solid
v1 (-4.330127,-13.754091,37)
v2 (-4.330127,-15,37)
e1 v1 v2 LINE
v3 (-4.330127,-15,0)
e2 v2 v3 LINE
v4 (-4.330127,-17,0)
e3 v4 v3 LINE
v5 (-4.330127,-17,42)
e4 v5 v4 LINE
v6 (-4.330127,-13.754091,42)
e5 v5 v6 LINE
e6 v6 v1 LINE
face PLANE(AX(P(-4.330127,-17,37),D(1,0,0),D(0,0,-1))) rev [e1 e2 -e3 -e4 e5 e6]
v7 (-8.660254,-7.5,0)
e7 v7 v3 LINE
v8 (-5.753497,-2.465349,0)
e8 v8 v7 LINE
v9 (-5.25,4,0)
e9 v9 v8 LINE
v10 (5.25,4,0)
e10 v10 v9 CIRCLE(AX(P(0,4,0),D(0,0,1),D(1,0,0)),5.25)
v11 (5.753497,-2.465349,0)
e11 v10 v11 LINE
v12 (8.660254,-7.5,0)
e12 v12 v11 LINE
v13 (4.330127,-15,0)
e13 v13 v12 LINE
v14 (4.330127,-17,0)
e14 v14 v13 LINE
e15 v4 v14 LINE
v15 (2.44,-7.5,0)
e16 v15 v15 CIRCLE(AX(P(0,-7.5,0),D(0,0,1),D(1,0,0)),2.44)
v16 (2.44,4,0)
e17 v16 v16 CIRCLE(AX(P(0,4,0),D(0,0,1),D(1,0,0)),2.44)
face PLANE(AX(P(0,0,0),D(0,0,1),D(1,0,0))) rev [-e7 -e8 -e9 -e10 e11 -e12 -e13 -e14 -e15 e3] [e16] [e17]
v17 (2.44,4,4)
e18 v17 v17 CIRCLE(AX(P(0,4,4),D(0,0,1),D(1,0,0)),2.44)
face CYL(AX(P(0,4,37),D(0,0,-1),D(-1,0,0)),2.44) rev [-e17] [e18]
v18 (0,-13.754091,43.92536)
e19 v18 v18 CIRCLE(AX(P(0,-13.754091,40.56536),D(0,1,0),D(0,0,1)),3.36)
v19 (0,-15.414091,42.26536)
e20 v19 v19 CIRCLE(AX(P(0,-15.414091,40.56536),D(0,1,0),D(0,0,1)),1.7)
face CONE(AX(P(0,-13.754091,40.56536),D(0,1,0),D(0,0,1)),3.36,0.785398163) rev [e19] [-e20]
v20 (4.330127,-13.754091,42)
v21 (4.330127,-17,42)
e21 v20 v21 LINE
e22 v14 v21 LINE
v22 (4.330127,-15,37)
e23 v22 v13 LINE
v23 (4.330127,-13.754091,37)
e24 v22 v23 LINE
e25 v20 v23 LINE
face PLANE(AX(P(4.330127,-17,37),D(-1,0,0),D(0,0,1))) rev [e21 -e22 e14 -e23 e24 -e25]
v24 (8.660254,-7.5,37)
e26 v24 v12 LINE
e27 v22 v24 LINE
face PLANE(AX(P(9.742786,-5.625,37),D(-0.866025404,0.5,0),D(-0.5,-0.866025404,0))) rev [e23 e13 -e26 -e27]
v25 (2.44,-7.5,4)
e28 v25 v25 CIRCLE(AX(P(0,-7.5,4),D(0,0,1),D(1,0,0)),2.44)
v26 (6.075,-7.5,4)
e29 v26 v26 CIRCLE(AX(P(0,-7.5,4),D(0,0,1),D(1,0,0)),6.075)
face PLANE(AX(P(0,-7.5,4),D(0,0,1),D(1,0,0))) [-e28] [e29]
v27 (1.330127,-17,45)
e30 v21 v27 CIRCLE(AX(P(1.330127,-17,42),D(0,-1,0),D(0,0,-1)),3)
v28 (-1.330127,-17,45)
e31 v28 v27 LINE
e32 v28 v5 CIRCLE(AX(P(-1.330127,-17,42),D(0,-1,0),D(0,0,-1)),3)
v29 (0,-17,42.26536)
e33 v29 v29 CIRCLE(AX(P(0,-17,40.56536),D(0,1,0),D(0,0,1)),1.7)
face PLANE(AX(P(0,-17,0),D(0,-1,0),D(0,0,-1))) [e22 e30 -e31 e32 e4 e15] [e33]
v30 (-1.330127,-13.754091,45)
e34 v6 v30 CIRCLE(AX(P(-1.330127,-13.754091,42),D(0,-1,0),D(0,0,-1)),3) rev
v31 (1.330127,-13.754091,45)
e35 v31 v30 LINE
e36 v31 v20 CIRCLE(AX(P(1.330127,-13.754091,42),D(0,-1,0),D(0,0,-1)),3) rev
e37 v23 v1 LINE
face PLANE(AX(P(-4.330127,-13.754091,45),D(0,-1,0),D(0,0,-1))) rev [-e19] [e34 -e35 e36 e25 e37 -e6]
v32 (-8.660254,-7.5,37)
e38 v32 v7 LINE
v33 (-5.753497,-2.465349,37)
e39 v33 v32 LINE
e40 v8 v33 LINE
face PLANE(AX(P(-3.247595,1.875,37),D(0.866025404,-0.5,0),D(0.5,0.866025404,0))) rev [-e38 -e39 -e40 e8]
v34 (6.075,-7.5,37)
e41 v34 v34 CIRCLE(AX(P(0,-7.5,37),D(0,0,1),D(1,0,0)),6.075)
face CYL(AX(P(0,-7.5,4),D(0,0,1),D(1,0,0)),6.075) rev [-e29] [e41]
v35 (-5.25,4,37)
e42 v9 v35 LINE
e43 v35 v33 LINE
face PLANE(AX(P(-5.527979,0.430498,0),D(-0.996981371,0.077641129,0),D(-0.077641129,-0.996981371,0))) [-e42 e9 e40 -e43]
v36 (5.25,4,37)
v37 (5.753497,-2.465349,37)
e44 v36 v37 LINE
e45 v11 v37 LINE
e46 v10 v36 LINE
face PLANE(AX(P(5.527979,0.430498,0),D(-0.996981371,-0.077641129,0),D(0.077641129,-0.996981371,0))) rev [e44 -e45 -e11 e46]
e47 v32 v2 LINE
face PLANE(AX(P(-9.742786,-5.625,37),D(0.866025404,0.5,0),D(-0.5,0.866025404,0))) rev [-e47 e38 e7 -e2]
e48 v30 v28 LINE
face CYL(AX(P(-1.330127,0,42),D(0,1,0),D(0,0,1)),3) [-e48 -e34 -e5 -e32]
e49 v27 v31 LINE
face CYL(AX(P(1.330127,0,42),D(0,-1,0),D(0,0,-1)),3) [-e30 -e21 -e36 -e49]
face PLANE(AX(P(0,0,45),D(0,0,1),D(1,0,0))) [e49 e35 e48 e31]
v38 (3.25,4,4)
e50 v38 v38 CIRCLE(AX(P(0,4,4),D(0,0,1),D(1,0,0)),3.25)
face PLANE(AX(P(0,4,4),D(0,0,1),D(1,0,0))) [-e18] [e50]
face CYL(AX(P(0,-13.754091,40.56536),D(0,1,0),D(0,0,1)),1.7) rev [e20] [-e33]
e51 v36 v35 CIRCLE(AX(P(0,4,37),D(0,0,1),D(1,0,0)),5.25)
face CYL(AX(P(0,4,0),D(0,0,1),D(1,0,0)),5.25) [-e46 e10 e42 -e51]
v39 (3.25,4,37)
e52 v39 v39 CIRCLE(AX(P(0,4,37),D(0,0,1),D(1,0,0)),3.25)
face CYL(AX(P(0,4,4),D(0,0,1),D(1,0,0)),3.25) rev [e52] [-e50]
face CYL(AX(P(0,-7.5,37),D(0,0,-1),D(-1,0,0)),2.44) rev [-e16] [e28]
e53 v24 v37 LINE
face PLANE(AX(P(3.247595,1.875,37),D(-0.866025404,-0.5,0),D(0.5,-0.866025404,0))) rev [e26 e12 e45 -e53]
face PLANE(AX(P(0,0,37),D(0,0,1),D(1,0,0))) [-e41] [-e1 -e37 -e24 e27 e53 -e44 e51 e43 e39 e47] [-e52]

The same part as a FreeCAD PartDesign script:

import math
import FreeCAD as App
import Part
import Sketcher
Q = App.Units.Quantity


def edges_at(feature, points):
    """Names of the edges that pass closest to the given points."""
    edges = feature.Shape.Edges
    near = lambda p: min(range(len(edges)), key=lambda i: edges[i].distToShape(Part.Vertex(*p))[0])
    return sorted({f"Edge{near(p) + 1}" for p in points})


def add_polygon(sketch, points):
    """Adds a closed chain of lines whose ends are joined by coincident constraints."""
    first, n = sketch.GeometryCount, len(points)
    for a, b in zip(points, points[1:] + points[:1]):
        sketch.addGeometry(Part.LineSegment(App.Vector(*a, 0), App.Vector(*b, 0)), False)
    for i in range(n):
        sketch.addConstraint(Sketcher.Constraint("Coincident", first + i, 2, first + (i + 1) % n, 1))

doc = App.newDocument("Part")
body = doc.addObject("PartDesign::Body", "Body")

sketch1 = doc.addObject("Sketcher::SketchObject", "Sketch")
body.addObject(sketch1)
sketch1.AttachmentSupport = (doc.XY_Plane, [""])
sketch1.MapMode = "FlatFace"
sketch1.addGeometry([
    Part.ArcOfCircle(Part.Circle(App.Vector(0, 4, 0), App.Vector(0, 0, 1), 4), math.radians(4.538944), math.radians(175.461056)),
    Part.LineSegment(App.Vector(-3.987455, 4.316547, 0), App.Vector(-4.330127, 0, 0)),
    Part.LineSegment(App.Vector(-4.330127, 0, 0), App.Vector(-8.660254, -7.5, 0)),
    Part.LineSegment(App.Vector(-8.660254, -7.5, 0), App.Vector(-4.330127, -15, 0)),
    Part.LineSegment(App.Vector(-4.330127, -15, 0), App.Vector(4.330127, -15, 0)),
    Part.LineSegment(App.Vector(4.330127, -15, 0), App.Vector(8.660254, -7.5, 0)),
    Part.LineSegment(App.Vector(8.660254, -7.5, 0), App.Vector(4.330127, 0, 0)),
    Part.LineSegment(App.Vector(4.330127, 0, 0), App.Vector(3.987455, 4.316547, 0)),
    Part.Circle(App.Vector(0, -7.5, 0), App.Vector(0, 0, 1), 2.44),
    Part.Circle(App.Vector(0, 4, 0), App.Vector(0, 0, 1), 2.44),
], False)
sketch1.addConstraint([
    Sketcher.Constraint("Tangent", 0, 2, 1, 1),
    Sketcher.Constraint("Coincident", 1, 2, 2, 1),
    Sketcher.Constraint("Coincident", 2, 2, 3, 1),
    Sketcher.Constraint("Coincident", 3, 2, 4, 1),
    Sketcher.Constraint("Coincident", 4, 2, 5, 1),
    Sketcher.Constraint("Coincident", 5, 2, 6, 1),
    Sketcher.Constraint("Coincident", 6, 2, 7, 1),
    Sketcher.Constraint("Tangent", 7, 2, 0, 1),
    Sketcher.Constraint("Horizontal", 4),
    Sketcher.Constraint("Coincident", 9, 3, 0, 3),
    Sketcher.Constraint("Equal", 8, 9),
    Sketcher.Constraint("Symmetric", 1, 2, 6, 2, -1, 1),
    Sketcher.Constraint("Symmetric", 2, 2, 5, 2, -2),
    Sketcher.Constraint("Symmetric", 0, 2, 7, 2, -2),
    Sketcher.Constraint("PointOnObject", 8, 3, -2),
    Sketcher.Constraint("Parallel", 2, 5),
    Sketcher.Constraint("Parallel", 3, 6),
    Sketcher.Constraint("Horizontal", 8, 3, 2, 2),
    Sketcher.Constraint("Vertical", 1, 2, 3, 2),
    Sketcher.Constraint("Radius", 0, 4.0),
    Sketcher.Constraint("Diameter", 8, 4.88),
    Sketcher.Constraint("Angle", 2, Q("-120 deg")),
    Sketcher.Constraint("DistanceY", -1, 1, 0, 3, 4.0),
    Sketcher.Constraint("DistanceY", 3, 2, -1, 1, 15.0),
    Sketcher.Constraint("DistanceX", 2, 2, 0, 2, 4.672799),
])
pad1 = doc.addObject("PartDesign::Pad", "Pad")
body.addObject(pad1)
pad1.Profile = sketch1
pad1.Length = 37

sketch2 = doc.addObject("Sketcher::SketchObject", "Sketch001")
body.addObject(sketch2)
sketch2.AttachmentSupport = (doc.XY_Plane, [""])
sketch2.MapMode = "FlatFace"
sketch2.AttachmentOffset = App.Placement(App.Vector(0, 0, 37), App.Rotation())
sketch2.addGeometry([
    Part.Circle(App.Vector(0, 4, 0), App.Vector(0, 0, 1), 3.25),
    Part.Circle(App.Vector(0, -7.5, 0), App.Vector(0, 0, 1), 6.075),
], False)
sketch2.addConstraint([
    Sketcher.Constraint("PointOnObject", 0, 3, -2),
    Sketcher.Constraint("PointOnObject", 1, 3, -2),
    Sketcher.Constraint("Diameter", 0, 6.5),
    Sketcher.Constraint("Diameter", 1, 12.15),
    Sketcher.Constraint("DistanceY", -1, 1, 0, 3, 4.0),
    Sketcher.Constraint("DistanceY", 1, 3, -1, 1, 7.5),
])
pocket1 = doc.addObject("PartDesign::Pocket", "Pocket")
body.addObject(pocket1)
pocket1.Profile = sketch2
pocket1.Length = 33

sketch3 = doc.addObject("Sketcher::SketchObject", "Sketch002")
body.addObject(sketch3)
sketch3.AttachmentSupport = (doc.XY_Plane, [""])
sketch3.MapMode = "FlatFace"
sketch3.AttachmentOffset = App.Placement(App.Vector(0, 0, 37), App.Rotation())
sketch3.addGeometry([
    Part.ArcOfCircle(Part.Circle(App.Vector(0, 4, 0), App.Vector(0, 0, 1), 5.25), math.radians(0), math.radians(180)),
    Part.LineSegment(App.Vector(-5.25, 4, 0), App.Vector(-5.753497, -2.465349, 0)),
    Part.LineSegment(App.Vector(-5.753497, -2.465349, 0), App.Vector(-4.330127, 0, 0)),
    Part.LineSegment(App.Vector(-4.330127, 0, 0), App.Vector(-4.256549, 0.926843, 0)),
    Part.LineSegment(App.Vector(-4.256549, 0.926843, 0), App.Vector(-3.987455, 4.316547, 0)),
    Part.ArcOfCircle(Part.Circle(App.Vector(0, 4, 0), App.Vector(0, 0, 1), 4), math.radians(4.538944), math.radians(175.461056)),
    Part.LineSegment(App.Vector(3.987455, 4.316547, 0), App.Vector(4.256549, 0.926843, 0)),
    Part.LineSegment(App.Vector(4.256549, 0.926843, 0), App.Vector(4.330127, 0, 0)),
    Part.LineSegment(App.Vector(4.330127, 0, 0), App.Vector(5.753497, -2.465349, 0)),
    Part.LineSegment(App.Vector(5.753497, -2.465349, 0), App.Vector(5.25, 4, 0)),
], False)
sketch3.addConstraint([
    Sketcher.Constraint("Coincident", 0, 2, 1, 1),
    Sketcher.Constraint("Coincident", 1, 2, 2, 1),
    Sketcher.Constraint("Coincident", 2, 2, 3, 1),
    Sketcher.Constraint("Coincident", 3, 2, 4, 1),
    Sketcher.Constraint("Tangent", 4, 2, 5, 2),
    Sketcher.Constraint("Tangent", 5, 1, 6, 1),
    Sketcher.Constraint("Coincident", 6, 2, 7, 1),
    Sketcher.Constraint("Coincident", 7, 2, 8, 1),
    Sketcher.Constraint("Coincident", 8, 2, 9, 1),
    Sketcher.Constraint("Coincident", 9, 2, 0, 1),
    Sketcher.Constraint("Coincident", 5, 3, 0, 3),
    Sketcher.Constraint("Symmetric", 2, 2, 7, 2, -1, 1),
    Sketcher.Constraint("Symmetric", 4, 2, 5, 1, -2),
    Sketcher.Constraint("Symmetric", 1, 2, 8, 2, -2),
    Sketcher.Constraint("PointOnObject", 2, 2, -1),
    Sketcher.Constraint("Parallel", 3, 4),
    Sketcher.Constraint("Horizontal", 5, 3, 0, 2),
    Sketcher.Constraint("Horizontal", 3, 2, 6, 2),
    Sketcher.Constraint("Horizontal", 0, 2, 9, 2),
    Sketcher.Constraint("Radius", 5, 4.0),
    Sketcher.Constraint("Angle", 2, Q("60 deg")),
    Sketcher.Constraint("Radius", 0, 5.25),
    Sketcher.Constraint("DistanceY", -1, 1, 0, 3, 4.0),
    Sketcher.Constraint("Distance", 2, 2.84674),
    Sketcher.Constraint("Distance", 3, 0.929759),
    Sketcher.Constraint("DistanceX", 3, 2, -1, 1, 4.256549),
])
pad2 = doc.addObject("PartDesign::Pad", "Pad001")
body.addObject(pad2)
pad2.Profile = sketch3
pad2.Length = 37
pad2.Reversed = True

sketch4 = doc.addObject("Sketcher::SketchObject", "Sketch003")
body.addObject(sketch4)
sketch4.AttachmentSupport = (doc.XZ_Plane, [""])
sketch4.MapMode = "FlatFace"
sketch4.AttachmentOffset = App.Placement(App.Vector(0, 0, 15), App.Rotation())
add_polygon(sketch4, [(-4.330127, 37), (-4.330127, 0), (4.330127, 0), (4.330127, 37)])
sketch4.addConstraint([
    Sketcher.Constraint("Vertical", 0),
    Sketcher.Constraint("Horizontal", 1),
    Sketcher.Constraint("Vertical", 2),
    Sketcher.Constraint("Horizontal", 3),
    Sketcher.Constraint("Symmetric", 0, 2, 1, 2, -1, 1),
    Sketcher.Constraint("DistanceY", 0, 2, 0, 1, 37.0),
    Sketcher.Constraint("DistanceX", 1, 1, 1, 2, 8.660254),
])
pad3 = doc.addObject("PartDesign::Pad", "Pad002")
body.addObject(pad3)
pad3.Profile = sketch4
pad3.Length = 2

sketch5 = doc.addObject("Sketcher::SketchObject", "Sketch004")
body.addObject(sketch5)
sketch5.AttachmentSupport = (doc.XY_Plane, [""])
sketch5.MapMode = "FlatFace"
sketch5.AttachmentOffset = App.Placement(App.Vector(0, 0, 37), App.Rotation())
add_polygon(sketch5, [(-4.330127, -13.754091), (-4.330127, -17), (4.330127, -17), (4.330127, -13.754091)])
sketch5.addConstraint([
    Sketcher.Constraint("Vertical", 0),
    Sketcher.Constraint("Horizontal", 1),
    Sketcher.Constraint("Vertical", 2),
    Sketcher.Constraint("Horizontal", 3),
    Sketcher.Constraint("DistanceY", 0, 2, -1, 1, 17.0),
    Sketcher.Constraint("DistanceY", 0, 2, 0, 1, 3.245909),
    Sketcher.Constraint("DistanceX", 1, 1, 1, 2, 8.660254),
    Sketcher.Constraint("DistanceX", 0, 2, -1, 1, 4.330127),
])
pad4 = doc.addObject("PartDesign::Pad", "Pad003")
body.addObject(pad4)
pad4.Profile = sketch5
pad4.Length = 8
doc.recompute()

fillet = doc.addObject("PartDesign::Fillet", "Fillet")
body.addObject(fillet)
fillet.Base = (pad4, edges_at(pad4, [(-4.33, -15.377, 45), (4.33, -15.377, 45)]))
fillet.Radius = 3

sketch6 = doc.addObject("Sketcher::SketchObject", "Sketch005")
body.addObject(sketch6)
sketch6.AttachmentSupport = (doc.YZ_Plane, [""])
sketch6.MapMode = "FlatFace"
add_polygon(sketch6, [(-17, 40.56536), (-13.754091, 40.56536), (-13.754091, 43.92536), (-15.414091, 42.26536), (-17, 42.26536)])
sketch6.addGeometry(Part.LineSegment(App.Vector(-13.754091, 40.56536, 0), App.Vector(-17, 40.56536, 0)), True)
sketch6.addConstraint([
    Sketcher.Constraint("Horizontal", 0),
    Sketcher.Constraint("Vertical", 1),
    Sketcher.Constraint("Horizontal", 3),
    Sketcher.Constraint("Vertical", 4),
    Sketcher.Constraint("Horizontal", 5),
    Sketcher.Constraint("Coincident", 5, 1, 0, 2),
    Sketcher.Constraint("Vertical", 3, 2, 5, 2),
    Sketcher.Constraint("Angle", 2, Q("-135 deg")),
    Sketcher.Constraint("DistanceY", 4, 2, 4, 1, 1.7),
    Sketcher.Constraint("DistanceX", 3, 2, -1, 1, 17.0),
    Sketcher.Constraint("DistanceY", 1, 1, 1, 2, 3.36),
    Sketcher.Constraint("DistanceX", 0, 1, 0, 2, 3.245909),
    Sketcher.Constraint("DistanceY", -1, 1, 0, 2, 40.56536),
])
groove = doc.addObject("PartDesign::Groove", "Groove")
body.addObject(groove)
groove.Profile = sketch6
groove.ReferenceAxis = (sketch6, ["Axis0"])
groove.Angle = 360

doc.recompute()
